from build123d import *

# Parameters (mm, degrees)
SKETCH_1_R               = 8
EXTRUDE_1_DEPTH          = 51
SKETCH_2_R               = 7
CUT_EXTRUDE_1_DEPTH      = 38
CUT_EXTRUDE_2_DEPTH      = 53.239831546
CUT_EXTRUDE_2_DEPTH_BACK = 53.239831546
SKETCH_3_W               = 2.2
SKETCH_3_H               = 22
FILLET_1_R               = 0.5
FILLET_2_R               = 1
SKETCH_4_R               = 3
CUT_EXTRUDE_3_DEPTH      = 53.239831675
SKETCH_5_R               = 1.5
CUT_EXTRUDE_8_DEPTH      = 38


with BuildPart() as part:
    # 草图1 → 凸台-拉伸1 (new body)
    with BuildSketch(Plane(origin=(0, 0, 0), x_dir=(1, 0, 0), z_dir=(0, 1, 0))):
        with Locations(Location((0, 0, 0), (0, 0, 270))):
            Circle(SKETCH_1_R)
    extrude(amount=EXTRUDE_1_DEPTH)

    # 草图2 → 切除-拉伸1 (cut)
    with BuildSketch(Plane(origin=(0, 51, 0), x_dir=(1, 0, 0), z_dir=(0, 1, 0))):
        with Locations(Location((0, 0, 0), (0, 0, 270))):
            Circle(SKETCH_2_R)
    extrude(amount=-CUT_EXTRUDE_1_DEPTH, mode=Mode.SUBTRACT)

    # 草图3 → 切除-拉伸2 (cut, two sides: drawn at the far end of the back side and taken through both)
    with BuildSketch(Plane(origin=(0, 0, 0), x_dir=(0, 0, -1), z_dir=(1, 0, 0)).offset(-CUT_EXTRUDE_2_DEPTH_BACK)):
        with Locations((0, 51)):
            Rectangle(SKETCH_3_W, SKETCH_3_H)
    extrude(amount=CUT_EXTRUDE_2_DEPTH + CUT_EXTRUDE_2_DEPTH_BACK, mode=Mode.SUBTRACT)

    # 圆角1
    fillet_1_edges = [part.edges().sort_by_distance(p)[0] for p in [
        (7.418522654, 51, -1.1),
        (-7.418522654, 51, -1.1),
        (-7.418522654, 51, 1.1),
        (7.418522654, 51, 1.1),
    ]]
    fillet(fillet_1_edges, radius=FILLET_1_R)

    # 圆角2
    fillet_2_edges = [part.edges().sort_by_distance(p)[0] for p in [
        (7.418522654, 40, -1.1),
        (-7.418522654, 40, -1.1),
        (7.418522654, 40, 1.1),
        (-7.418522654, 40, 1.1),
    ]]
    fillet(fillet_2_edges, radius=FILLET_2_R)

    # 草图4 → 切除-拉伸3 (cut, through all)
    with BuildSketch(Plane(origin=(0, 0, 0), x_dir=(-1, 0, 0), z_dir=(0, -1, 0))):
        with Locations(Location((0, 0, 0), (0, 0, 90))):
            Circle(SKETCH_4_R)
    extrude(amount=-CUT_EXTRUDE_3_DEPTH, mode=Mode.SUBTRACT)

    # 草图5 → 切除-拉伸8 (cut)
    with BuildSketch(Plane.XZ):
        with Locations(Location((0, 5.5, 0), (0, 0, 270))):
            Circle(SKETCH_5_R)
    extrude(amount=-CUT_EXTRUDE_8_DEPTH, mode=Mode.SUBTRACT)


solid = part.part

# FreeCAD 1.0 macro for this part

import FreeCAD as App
import Part
import Sketcher


def edges_at(feature, points):
    """Names of the edges that pass closest to the given points."""
    edges = feature.Shape.Edges
    near = lambda p: min(range(len(edges)), key=lambda i: edges[i].distToShape(Part.Vertex(*p))[0])
    return sorted({f"Edge{near(p) + 1}" for p in points})

doc = App.newDocument("Part")
params = doc.addObject("Spreadsheet::Sheet", "Params")
for row, (alias, value) in enumerate([
    ("sketch1_diameter", "16 mm"),
    ("pad1_length", "51 mm"),
    ("sketch2_diameter", "14 mm"),
    ("pocket1_length", "38 mm"),
    ("sketch3_width", "22 mm"),
    ("sketch3_height", "2.2 mm"),
    ("fillet_radius", "0.5 mm"),
    ("fillet2_radius", "1 mm"),
    ("sketch4_diameter", "6 mm"),
    ("sketch5_diameter", "3 mm"),
    ("pocket4_length", "38 mm"),
], start=1):
    params.set(f"A{row}", alias)
    params.set(f"B{row}", "=" + value)
    params.setAlias(f"B{row}", alias)

body = doc.addObject("PartDesign::Body", "Body")

sketch1 = body.newObject("Sketcher::SketchObject", "Sketch")
sketch1.AttachmentSupport = (doc.getObject("XZ_Plane"), [""])
sketch1.MapMode = "FlatFace"
sketch1.addGeometry(Part.Circle(App.Vector(0, 0, 0), App.Vector(0, 0, 1), 8), False)
sketch1.addConstraint(Sketcher.Constraint("Coincident", 0, 3, -1, 1))
sketch1.addConstraint(Sketcher.Constraint("Diameter", 0, 16.0))
sketch1.setExpression("Constraints[1]", "Params.sketch1_diameter")
pad1 = body.newObject("PartDesign::Pad", "Pad")
pad1.Profile = sketch1
pad1.setExpression("Length", "Params.pad1_length")
pad1.Reversed = True

sketch2 = body.newObject("Sketcher::SketchObject", "Sketch001")
sketch2.AttachmentSupport = (doc.getObject("XZ_Plane"), [""])
sketch2.MapMode = "FlatFace"
sketch2.AttachmentOffset = App.Placement(App.Vector(0, 0, -51), App.Rotation())
sketch2.addGeometry(Part.Circle(App.Vector(0, 0, 0), App.Vector(0, 0, 1), 7), False)
sketch2.addConstraint(Sketcher.Constraint("Coincident", 0, 3, -1, 1))
sketch2.addConstraint(Sketcher.Constraint("Diameter", 0, 14.0))
sketch2.setExpression("Constraints[1]", "Params.sketch2_diameter")
pocket1 = body.newObject("PartDesign::Pocket", "Pocket")
pocket1.Profile = sketch2
pocket1.setExpression("Length", "Params.pocket1_length")
pocket1.Reversed = True

sketch3 = body.newObject("Sketcher::SketchObject", "Sketch002")
sketch3.AttachmentSupport = (doc.getObject("YZ_Plane"), [""])
sketch3.MapMode = "FlatFace"
sketch3.addGeometry(Part.LineSegment(App.Vector(62, 1.1, 0), App.Vector(40, 1.1, 0)), False)
sketch3.addGeometry(Part.LineSegment(App.Vector(40, 1.1, 0), App.Vector(40, -1.1, 0)), False)
sketch3.addGeometry(Part.LineSegment(App.Vector(40, -1.1, 0), App.Vector(62, -1.1, 0)), False)
sketch3.addGeometry(Part.LineSegment(App.Vector(62, -1.1, 0), App.Vector(62, 1.1, 0)), False)
sketch3.addConstraint(Sketcher.Constraint("Coincident", 0, 2, 1, 1))
sketch3.addConstraint(Sketcher.Constraint("Coincident", 1, 2, 2, 1))
sketch3.addConstraint(Sketcher.Constraint("Coincident", 2, 2, 3, 1))
sketch3.addConstraint(Sketcher.Constraint("Coincident", 3, 2, 0, 1))
sketch3.addConstraint(Sketcher.Constraint("Horizontal", 0))
sketch3.addConstraint(Sketcher.Constraint("Vertical", 1))
sketch3.addConstraint(Sketcher.Constraint("Horizontal", 2))
sketch3.addConstraint(Sketcher.Constraint("Vertical", 3))
sketch3.addConstraint(Sketcher.Constraint("DistanceX", 0, 2, 0, 1, 22.0))
sketch3.addConstraint(Sketcher.Constraint("DistanceY", 1, 2, 1, 1, 2.2))
sketch3.addConstraint(Sketcher.Constraint("DistanceX", -1, 1, 0, 2, 40.0))
sketch3.addConstraint(Sketcher.Constraint("DistanceY", -1, 1, 0, 2, 1.1))
sketch3.setExpression("Constraints[8]", "Params.sketch3_width")
sketch3.setExpression("Constraints[9]", "Params.sketch3_height")
pocket2 = body.newObject("PartDesign::Pocket", "Pocket001")
pocket2.Profile = sketch3
pocket2.Type = "ThroughAll"
pocket2.Midplane = True
doc.recompute()

fillet = body.newObject("PartDesign::Fillet", "Fillet")
fillet.Base = (pocket2, edges_at(pocket2, [
    (7.419, 51, -1.1),
    (-7.419, 51, -1.1),
    (-7.419, 51, 1.1),
    (7.419, 51, 1.1),
]))
fillet.setExpression("Radius", "Params.fillet_radius")
doc.recompute()

fillet2 = body.newObject("PartDesign::Fillet", "Fillet001")
fillet2.Base = (fillet, edges_at(fillet, [
    (7.419, 40, -1.1),
    (-7.419, 40, -1.1),
    (7.419, 40, 1.1),
    (-7.419, 40, 1.1),
]))
fillet2.setExpression("Radius", "Params.fillet2_radius")

sketch4 = body.newObject("Sketcher::SketchObject", "Sketch003")
sketch4.AttachmentSupport = (doc.getObject("XZ_Plane"), [""])
sketch4.MapMode = "FlatFace"
sketch4.addGeometry(Part.Circle(App.Vector(0, 0, 0), App.Vector(0, 0, 1), 3), False)
sketch4.addConstraint(Sketcher.Constraint("Coincident", 0, 3, -1, 1))
sketch4.addConstraint(Sketcher.Constraint("Diameter", 0, 6.0))
sketch4.setExpression("Constraints[1]", "Params.sketch4_diameter")
pocket3 = body.newObject("PartDesign::Pocket", "Pocket002")
pocket3.Profile = sketch4
pocket3.Type = "ThroughAll"

sketch5 = body.newObject("Sketcher::SketchObject", "Sketch004")
sketch5.AttachmentSupport = (doc.getObject("XZ_Plane"), [""])
sketch5.MapMode = "FlatFace"
sketch5.addGeometry(Part.Circle(App.Vector(0, 5.5, 0), App.Vector(0, 0, 1), 1.5), False)
sketch5.addConstraint(Sketcher.Constraint("PointOnObject", 0, 3, -2))
sketch5.addConstraint(Sketcher.Constraint("Diameter", 0, 3.0))
sketch5.addConstraint(Sketcher.Constraint("DistanceY", -1, 1, 0, 3, 5.5))
sketch5.setExpression("Constraints[1]", "Params.sketch5_diameter")
pocket4 = body.newObject("PartDesign::Pocket", "Pocket003")
pocket4.Profile = sketch5
pocket4.setExpression("Length", "Params.pocket4_length")

doc.recompute()
